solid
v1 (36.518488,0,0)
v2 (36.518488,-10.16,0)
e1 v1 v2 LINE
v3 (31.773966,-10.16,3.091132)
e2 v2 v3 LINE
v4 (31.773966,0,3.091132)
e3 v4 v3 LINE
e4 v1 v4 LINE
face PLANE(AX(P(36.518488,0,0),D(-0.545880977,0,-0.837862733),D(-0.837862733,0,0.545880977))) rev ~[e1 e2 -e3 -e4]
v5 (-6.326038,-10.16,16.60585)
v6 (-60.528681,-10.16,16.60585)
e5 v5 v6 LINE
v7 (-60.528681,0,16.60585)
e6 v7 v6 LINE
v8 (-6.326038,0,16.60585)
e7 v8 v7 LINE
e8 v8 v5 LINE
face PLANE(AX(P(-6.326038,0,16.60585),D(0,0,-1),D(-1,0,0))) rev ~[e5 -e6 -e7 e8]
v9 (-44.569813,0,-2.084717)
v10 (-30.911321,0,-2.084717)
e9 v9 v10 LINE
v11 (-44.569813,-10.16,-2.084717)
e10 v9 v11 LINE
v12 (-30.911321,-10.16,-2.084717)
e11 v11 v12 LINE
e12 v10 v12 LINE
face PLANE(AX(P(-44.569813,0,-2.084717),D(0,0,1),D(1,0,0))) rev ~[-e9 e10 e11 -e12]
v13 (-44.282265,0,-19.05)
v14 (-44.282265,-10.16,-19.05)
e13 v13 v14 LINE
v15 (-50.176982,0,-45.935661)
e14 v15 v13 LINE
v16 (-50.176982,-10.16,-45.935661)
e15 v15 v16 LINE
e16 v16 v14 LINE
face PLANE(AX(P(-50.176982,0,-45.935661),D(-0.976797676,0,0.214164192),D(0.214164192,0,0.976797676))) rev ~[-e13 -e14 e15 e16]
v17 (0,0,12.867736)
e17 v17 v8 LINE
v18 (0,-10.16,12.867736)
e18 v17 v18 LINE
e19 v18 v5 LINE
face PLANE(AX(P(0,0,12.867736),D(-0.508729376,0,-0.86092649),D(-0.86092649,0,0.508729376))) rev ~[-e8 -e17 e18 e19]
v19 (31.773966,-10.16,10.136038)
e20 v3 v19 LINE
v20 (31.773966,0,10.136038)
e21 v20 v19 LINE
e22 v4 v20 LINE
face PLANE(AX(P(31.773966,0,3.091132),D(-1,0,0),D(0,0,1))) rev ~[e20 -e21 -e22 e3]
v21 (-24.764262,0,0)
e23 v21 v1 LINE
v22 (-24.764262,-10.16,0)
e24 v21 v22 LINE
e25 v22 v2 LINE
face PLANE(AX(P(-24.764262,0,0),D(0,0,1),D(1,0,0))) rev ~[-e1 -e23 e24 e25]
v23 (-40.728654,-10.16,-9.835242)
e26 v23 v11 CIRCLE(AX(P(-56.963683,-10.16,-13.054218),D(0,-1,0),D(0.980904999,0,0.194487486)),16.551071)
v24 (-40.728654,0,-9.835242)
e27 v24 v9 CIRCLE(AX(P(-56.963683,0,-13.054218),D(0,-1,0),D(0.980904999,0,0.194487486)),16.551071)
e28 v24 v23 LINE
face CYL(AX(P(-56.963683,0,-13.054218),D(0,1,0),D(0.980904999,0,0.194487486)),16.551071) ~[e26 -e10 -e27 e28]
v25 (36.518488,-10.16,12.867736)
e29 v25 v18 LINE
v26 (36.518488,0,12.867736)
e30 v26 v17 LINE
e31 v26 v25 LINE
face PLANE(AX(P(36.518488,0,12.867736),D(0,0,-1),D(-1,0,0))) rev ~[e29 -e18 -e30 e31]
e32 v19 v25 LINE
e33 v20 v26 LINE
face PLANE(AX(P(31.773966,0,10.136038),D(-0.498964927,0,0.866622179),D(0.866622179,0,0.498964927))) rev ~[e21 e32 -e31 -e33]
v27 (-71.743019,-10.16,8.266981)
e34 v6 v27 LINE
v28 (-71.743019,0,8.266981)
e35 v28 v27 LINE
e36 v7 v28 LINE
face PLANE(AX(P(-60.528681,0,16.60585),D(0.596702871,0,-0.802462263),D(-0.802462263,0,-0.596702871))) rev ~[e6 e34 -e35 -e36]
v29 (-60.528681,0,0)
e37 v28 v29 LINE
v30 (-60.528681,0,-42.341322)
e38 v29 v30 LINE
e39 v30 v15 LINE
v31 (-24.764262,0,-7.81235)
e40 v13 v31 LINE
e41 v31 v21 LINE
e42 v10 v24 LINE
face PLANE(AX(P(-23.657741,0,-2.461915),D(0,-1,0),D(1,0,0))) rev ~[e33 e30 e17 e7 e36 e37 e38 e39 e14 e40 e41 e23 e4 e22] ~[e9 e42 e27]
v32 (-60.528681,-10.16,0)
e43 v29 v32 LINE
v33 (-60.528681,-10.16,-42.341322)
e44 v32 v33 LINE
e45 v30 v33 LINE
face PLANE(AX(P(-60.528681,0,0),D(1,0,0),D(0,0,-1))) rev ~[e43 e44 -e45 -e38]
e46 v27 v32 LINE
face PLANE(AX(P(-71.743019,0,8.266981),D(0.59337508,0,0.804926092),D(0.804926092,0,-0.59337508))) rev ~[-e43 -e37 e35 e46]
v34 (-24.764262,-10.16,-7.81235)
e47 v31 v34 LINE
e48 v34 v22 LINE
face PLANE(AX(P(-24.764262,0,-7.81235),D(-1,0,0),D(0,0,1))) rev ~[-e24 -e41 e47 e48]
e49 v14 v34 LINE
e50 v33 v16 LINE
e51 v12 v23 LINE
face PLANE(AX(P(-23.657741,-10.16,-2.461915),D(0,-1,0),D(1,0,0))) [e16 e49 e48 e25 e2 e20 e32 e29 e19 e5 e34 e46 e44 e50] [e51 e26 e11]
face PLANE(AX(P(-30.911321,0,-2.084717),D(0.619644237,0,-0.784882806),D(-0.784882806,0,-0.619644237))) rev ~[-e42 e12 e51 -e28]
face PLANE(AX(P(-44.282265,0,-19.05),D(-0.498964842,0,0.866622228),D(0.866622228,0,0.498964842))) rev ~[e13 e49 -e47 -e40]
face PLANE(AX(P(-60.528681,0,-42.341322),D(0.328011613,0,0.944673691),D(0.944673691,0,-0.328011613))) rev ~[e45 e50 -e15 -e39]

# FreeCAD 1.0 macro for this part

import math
import FreeCAD as App
import Part
import Sketcher
Q = App.Units.Quantity

doc = App.newDocument("Part")
body = doc.addObject("PartDesign::Body", "Body")

sketch1 = body.newObject("Sketcher::SketchObject", "Sketch")
sketch1.AttachmentSupport = (doc.getObject("XZ_Plane"), [""])
sketch1.MapMode = "FlatFace"
sketch1.addGeometry([
    Part.LineSegment(App.Vector(-25, 0, 0), App.Vector(37, 0, 0)),
    Part.LineSegment(App.Vector(37, 0, 0), App.Vector(32, 3, 0)),
    Part.LineSegment(App.Vector(32, 3, 0), App.Vector(32, 10, 0)),
    Part.LineSegment(App.Vector(32, 10, 0), App.Vector(37, 13, 0)),
    Part.LineSegment(App.Vector(37, 13, 0), App.Vector(0, 13, 0)),
    Part.LineSegment(App.Vector(0, 13, 0), App.Vector(-6, 17, 0)),
    Part.LineSegment(App.Vector(-6, 17, 0), App.Vector(-61, 17, 0)),
    Part.LineSegment(App.Vector(-61, 17, 0), App.Vector(-72, 8, 0)),
    Part.LineSegment(App.Vector(-72, 8, 0), App.Vector(-61, 0, 0)),
    Part.LineSegment(App.Vector(-61, 0, 0), App.Vector(-61, -42, 0)),
    Part.LineSegment(App.Vector(-61, -42, 0), App.Vector(-50, -46, 0)),
    Part.LineSegment(App.Vector(-50, -46, 0), App.Vector(-44, -19, 0)),
    Part.LineSegment(App.Vector(-44, -19, 0), App.Vector(-25, -8, 0)),
    Part.LineSegment(App.Vector(-25, -8, 0), App.Vector(-25, 0, 0)),
    Part.LineSegment(App.Vector(-31, -2, 0), App.Vector(-41, -10, 0)),
    Part.ArcOfCircle(Part.Circle(App.Vector(-57, -13, 0), App.Vector(0, 0, 1), 17), math.radians(11), math.radians(42)),
    Part.LineSegment(App.Vector(-45, -2, 0), App.Vector(-31, -2, 0)),
], False)
sketch1.addConstraint([
    Sketcher.Constraint("Coincident", 0, 2, 1, 1),
    Sketcher.Constraint("Coincident", 1, 2, 2, 1),
    Sketcher.Constraint("Coincident", 2, 2, 3, 1),
    Sketcher.Constraint("Coincident", 3, 2, 4, 1),
    Sketcher.Constraint("Coincident", 4, 2, 5, 1),
    Sketcher.Constraint("Coincident", 5, 2, 6, 1),
    Sketcher.Constraint("Coincident", 6, 2, 7, 1),
    Sketcher.Constraint("Coincident", 7, 2, 8, 1),
    Sketcher.Constraint("Coincident", 8, 2, 9, 1),
    Sketcher.Constraint("Coincident", 9, 2, 10, 1),
    Sketcher.Constraint("Coincident", 10, 2, 11, 1),
    Sketcher.Constraint("Coincident", 11, 2, 12, 1),
    Sketcher.Constraint("Coincident", 12, 2, 13, 1),
    Sketcher.Constraint("Coincident", 13, 2, 0, 1),
    Sketcher.Constraint("Coincident", 14, 2, 15, 1),
    Sketcher.Constraint("Coincident", 15, 2, 16, 1),
    Sketcher.Constraint("Coincident", 16, 2, 14, 1),
    Sketcher.Constraint("Horizontal", 0),
    Sketcher.Constraint("Vertical", 2),
    Sketcher.Constraint("Horizontal", 4),
    Sketcher.Constraint("Horizontal", 6),
    Sketcher.Constraint("Vertical", 9),
    Sketcher.Constraint("Vertical", 13),
    Sketcher.Constraint("Horizontal", 16),
    Sketcher.Constraint("PointOnObject", 0, 2, -1),
    Sketcher.Constraint("PointOnObject", 4, 2, -2),
    Sketcher.Constraint("PointOnObject", 8, 2, -1),
    Sketcher.Constraint("Parallel", 3, 12),
    Sketcher.Constraint("Vertical", 0, 2, 3, 2),
    Sketcher.Constraint("Vertical", 6, 2, 8, 2),
    Sketcher.Constraint("DistanceX", 5, 2, 2, 2, Q("1.5000002 in")),
    Sketcher.Constraint("DistanceY", 11, 2, -1, 1, Q("0.75 in")),
    Sketcher.Constraint("Radius", 15, Q("16.551071 mm")),
    Sketcher.Constraint("DistanceX", 0, 1, 0, 2, Q("61.28275 mm")),
    Sketcher.Constraint("DistanceY", 9, 2, 9, 1, Q("42.341322 mm")),
    Sketcher.Constraint("DistanceY", 13, 1, 13, 2, Q("7.81235 mm")),
    Sketcher.Constraint("DistanceY", 2, 2, 3, 2, Q("2.731698 mm")),
    Sketcher.Constraint("DistanceX", 6, 2, 15, 3, Q("3.564998 mm")),
    Sketcher.Constraint("DistanceY", 15, 3, 7, 2, Q("21.321199 mm")),
    Sketcher.Constraint("DistanceX", 9, 2, 10, 2, Q("10.351699 mm")),
    Sketcher.Constraint("DistanceY", 12, 2, 5, 2, Q("24.4182 mm")),
    Sketcher.Constraint("DistanceY", 15, 3, 15, 2, Q("10.969501 mm")),
    Sketcher.Constraint("Distance", 1, Q("5.662648 mm")),
    Sketcher.Constraint("Distance", 3, Q("5.474729 mm")),
    Sketcher.Constraint("Distance", 7, Q("13.97491 mm")),
    Sketcher.Constraint("Distance", 11, Q("27.524288 mm")),
    Sketcher.Constraint("DistanceX", 4, 2, 4, 1, Q("36.518488 mm")),
    Sketcher.Constraint("DistanceX", 6, 2, 6, 1, Q("54.202643 mm")),
    Sketcher.Constraint("DistanceX", 16, 1, 16, 2, Q("13.658492 mm")),
    Sketcher.Constraint("DistanceY", 2, 1, 2, 2, Q("7.044906 mm")),
    Sketcher.Constraint("DistanceY", 15, 3, -1, 1, Q("13.054218 mm")),
    Sketcher.Constraint("DistanceY", 14, 2, -1, 1, Q("9.835242 mm")),
])
pad1 = body.newObject("PartDesign::Pad", "Pad")
pad1.Profile = sketch1
pad1.Length = Q("0.4 in")

doc.recompute()
